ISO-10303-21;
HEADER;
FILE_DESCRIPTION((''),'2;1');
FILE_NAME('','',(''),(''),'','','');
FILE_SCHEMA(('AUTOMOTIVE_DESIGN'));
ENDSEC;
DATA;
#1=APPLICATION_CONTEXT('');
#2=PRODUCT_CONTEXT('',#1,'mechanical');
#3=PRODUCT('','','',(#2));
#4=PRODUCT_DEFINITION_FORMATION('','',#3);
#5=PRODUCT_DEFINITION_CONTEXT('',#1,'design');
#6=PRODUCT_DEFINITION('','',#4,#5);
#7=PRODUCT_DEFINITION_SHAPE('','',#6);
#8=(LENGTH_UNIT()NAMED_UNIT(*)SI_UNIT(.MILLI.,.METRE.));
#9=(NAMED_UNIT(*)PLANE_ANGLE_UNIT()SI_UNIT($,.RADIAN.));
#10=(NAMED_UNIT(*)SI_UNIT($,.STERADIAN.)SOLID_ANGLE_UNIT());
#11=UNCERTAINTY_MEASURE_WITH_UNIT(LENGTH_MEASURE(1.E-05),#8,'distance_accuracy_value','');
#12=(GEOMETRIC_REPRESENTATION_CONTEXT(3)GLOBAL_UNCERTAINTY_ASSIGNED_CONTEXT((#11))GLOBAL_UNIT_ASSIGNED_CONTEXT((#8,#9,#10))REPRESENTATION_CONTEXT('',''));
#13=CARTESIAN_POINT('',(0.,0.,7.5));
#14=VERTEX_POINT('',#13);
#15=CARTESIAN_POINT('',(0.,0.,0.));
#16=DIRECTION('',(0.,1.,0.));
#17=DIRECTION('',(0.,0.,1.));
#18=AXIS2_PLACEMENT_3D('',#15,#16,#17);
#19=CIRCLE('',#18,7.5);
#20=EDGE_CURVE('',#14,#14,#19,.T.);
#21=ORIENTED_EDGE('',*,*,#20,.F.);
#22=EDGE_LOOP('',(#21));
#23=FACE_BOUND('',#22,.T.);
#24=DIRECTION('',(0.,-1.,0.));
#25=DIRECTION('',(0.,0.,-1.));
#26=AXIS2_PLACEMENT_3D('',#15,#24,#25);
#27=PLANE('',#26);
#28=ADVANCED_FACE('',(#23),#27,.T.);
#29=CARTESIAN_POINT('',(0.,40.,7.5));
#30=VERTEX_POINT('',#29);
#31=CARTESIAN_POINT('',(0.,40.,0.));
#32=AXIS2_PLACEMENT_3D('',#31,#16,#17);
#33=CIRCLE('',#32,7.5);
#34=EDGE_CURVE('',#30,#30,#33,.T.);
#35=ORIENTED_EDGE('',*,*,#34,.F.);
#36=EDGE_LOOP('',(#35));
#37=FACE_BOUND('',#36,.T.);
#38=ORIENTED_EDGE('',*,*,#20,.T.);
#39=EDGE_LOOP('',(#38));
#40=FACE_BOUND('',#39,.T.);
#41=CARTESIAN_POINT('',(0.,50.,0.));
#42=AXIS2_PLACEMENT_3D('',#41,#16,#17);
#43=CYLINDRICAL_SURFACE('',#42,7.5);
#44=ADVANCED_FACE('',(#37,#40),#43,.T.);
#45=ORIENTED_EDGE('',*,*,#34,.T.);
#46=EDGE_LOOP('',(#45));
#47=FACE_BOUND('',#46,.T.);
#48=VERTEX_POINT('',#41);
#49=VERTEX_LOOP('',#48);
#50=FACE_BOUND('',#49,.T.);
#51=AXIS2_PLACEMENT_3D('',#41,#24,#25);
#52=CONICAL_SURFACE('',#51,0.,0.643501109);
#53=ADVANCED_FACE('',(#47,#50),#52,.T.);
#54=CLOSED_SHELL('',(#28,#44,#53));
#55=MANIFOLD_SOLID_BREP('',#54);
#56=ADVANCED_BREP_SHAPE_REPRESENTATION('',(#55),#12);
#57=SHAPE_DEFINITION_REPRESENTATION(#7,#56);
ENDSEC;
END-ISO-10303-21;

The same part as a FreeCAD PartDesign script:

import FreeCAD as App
import Part
import Sketcher

V = App.Vector

doc = App.newDocument("Part")
body = doc.addObject("PartDesign::Body", "Body")

sketch1 = body.newObject("Sketcher::SketchObject", "Sketch")
sketch1.AttachmentSupport = (doc.getObject("YZ_Plane"), [""])
sketch1.MapMode = "FlatFace"
sketch1.addGeometry([
    Part.LineSegment(V(0, 8, 0), V(0, 0, 0)),
    Part.LineSegment(V(0, 0, 0), V(50, 0, 0)),
    Part.LineSegment(V(50, 0, 0), V(40, 8, 0)),
    Part.LineSegment(V(40, 8, 0), V(0, 8, 0)),
], False)
sketch1.addConstraint([
    Sketcher.Constraint("Coincident", 0, 2, 1, 1),
    Sketcher.Constraint("Coincident", 1, 2, 2, 1),
    Sketcher.Constraint("Coincident", 2, 2, 3, 1),
    Sketcher.Constraint("Coincident", 3, 2, 0, 1),
    Sketcher.Constraint("Vertical", 0),
    Sketcher.Constraint("Horizontal", 1),
    Sketcher.Constraint("Horizontal", 3),
    Sketcher.Constraint("Coincident", 0, 2, -1, 1),
    Sketcher.Constraint("DistanceX", 1, 1, 1, 2, 50.0),
    Sketcher.Constraint("DistanceX", 3, 2, 3, 1, 40.0),
    Sketcher.Constraint("DistanceY", 0, 2, 0, 1, 7.5),
])
revolution = body.newObject("PartDesign::Revolution", "Revolution")
revolution.Profile = sketch1
revolution.ReferenceAxis = (sketch1, ["H_Axis"])
revolution.Angle = 360

doc.recompute()
